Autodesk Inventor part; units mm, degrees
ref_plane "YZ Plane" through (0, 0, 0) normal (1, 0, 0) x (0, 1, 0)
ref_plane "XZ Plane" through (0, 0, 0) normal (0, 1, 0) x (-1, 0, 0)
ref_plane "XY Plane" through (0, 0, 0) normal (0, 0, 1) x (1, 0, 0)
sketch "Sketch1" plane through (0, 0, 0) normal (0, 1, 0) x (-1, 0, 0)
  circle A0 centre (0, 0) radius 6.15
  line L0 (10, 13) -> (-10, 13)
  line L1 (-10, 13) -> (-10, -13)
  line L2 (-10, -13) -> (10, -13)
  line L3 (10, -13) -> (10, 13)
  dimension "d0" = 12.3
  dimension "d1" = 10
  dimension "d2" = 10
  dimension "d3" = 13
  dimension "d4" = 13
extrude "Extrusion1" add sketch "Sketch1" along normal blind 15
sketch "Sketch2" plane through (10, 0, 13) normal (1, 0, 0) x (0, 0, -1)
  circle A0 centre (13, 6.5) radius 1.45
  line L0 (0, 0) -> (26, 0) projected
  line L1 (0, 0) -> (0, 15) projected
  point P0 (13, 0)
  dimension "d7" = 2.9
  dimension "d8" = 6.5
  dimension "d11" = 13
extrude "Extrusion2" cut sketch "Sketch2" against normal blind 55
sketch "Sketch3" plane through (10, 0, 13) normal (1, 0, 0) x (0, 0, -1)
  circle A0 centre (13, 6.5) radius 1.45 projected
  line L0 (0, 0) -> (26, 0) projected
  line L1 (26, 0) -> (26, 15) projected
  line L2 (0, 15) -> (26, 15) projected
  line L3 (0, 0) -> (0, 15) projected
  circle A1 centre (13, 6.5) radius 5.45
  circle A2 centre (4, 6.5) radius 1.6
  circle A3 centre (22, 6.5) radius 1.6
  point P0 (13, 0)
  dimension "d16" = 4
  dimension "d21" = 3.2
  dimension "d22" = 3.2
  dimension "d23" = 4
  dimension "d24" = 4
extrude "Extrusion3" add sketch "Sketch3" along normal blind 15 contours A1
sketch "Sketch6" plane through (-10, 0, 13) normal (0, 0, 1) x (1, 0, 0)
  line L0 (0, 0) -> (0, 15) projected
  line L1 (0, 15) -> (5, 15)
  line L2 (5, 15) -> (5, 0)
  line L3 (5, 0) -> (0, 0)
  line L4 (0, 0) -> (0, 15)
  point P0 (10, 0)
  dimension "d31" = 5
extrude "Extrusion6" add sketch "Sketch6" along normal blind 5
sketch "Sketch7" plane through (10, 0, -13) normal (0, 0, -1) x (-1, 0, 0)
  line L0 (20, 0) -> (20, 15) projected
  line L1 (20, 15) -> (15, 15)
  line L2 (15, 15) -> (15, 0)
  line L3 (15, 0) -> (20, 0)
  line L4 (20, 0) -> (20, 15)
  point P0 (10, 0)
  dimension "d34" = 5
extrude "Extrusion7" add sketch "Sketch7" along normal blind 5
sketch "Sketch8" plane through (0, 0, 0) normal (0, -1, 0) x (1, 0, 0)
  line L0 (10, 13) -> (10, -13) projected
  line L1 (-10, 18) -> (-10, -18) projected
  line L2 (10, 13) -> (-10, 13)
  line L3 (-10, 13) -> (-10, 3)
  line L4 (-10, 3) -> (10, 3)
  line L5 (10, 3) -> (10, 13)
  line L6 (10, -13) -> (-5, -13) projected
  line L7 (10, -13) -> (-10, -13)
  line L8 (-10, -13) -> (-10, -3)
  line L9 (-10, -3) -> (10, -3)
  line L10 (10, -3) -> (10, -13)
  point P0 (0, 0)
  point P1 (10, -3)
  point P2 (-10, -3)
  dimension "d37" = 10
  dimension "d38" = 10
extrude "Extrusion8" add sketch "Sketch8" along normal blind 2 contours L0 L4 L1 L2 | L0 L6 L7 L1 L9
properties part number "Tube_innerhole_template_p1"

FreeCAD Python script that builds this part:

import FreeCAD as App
import Part
import Sketcher

V = App.Vector
Q = App.Units.Quantity


def add_polygon(sketch, points):
    """Adds a closed chain of lines whose ends are joined by coincident constraints."""
    first, n = sketch.GeometryCount, len(points)
    for a, b in zip(points, points[1:] + points[:1]):
        sketch.addGeometry(Part.LineSegment(App.Vector(*a, 0), App.Vector(*b, 0)), False)
    for i in range(n):
        sketch.addConstraint(Sketcher.Constraint("Coincident", first + i, 2, first + (i + 1) % n, 1))

doc = App.newDocument("Part")
params = doc.addObject("Spreadsheet::Sheet", "Params")
for row, (alias, value) in enumerate([
    ("sketch1_diameter", "12.3 mm"),
    ("pad1_length", "15 mm"),
    ("sketch2_diameter", "2.9 mm"),
    ("pocket1_length", "55 mm"),
    ("sketch3_diameter", "10.9 mm"),
    ("sketch3_diameter2", "2.9 mm"),
    ("pad2_length", "15 mm"),
    ("sketch4_width", "5 mm"),
    ("sketch4_height", "15 mm"),
    ("pad3_length", "5 mm"),
    ("sketch5_width", "5 mm"),
    ("sketch5_height", "15 mm"),
    ("pad4_length", "5 mm"),
    ("sketch6_height", "10 mm"),
    ("pad5_length", "2 mm"),
], start=1):
    params.set(f"A{row}", alias)
    params.set(f"B{row}", "=" + value)
    params.setAlias(f"B{row}", alias)

body = doc.addObject("PartDesign::Body", "Body")

# Sketch on XZ plane
sketch1 = doc.addObject("Sketcher::SketchObject", "Sketch")
body.addObject(sketch1)
sketch1.AttachmentSupport = (doc.XZ_Plane, [""])
sketch1.MapMode = "FlatFace"
add_polygon(sketch1, [(-10, -13), (-10, 13), (10, 13), (10, -13)])  # lines 0-3
sketch1.addGeometry(Part.Circle(V(0, 0, 0), V(0, 0, 1), 6.15), False)  # 4
sketch1.addConstraint([
    Sketcher.Constraint("Vertical", 0),
    Sketcher.Constraint("Horizontal", 1),
    Sketcher.Constraint("Vertical", 2),
    Sketcher.Constraint("Horizontal", 3),
    Sketcher.Constraint("Coincident", 4, 3, -1, 1),
    Sketcher.Constraint("Symmetric", 0, 2, 2, 2, -1, 1),
    Sketcher.Constraint("Diameter", 4, Q("12.3 mm")),
    Sketcher.Constraint("DistanceX", 0, 2, -1, 1, Q("10 mm")),
    Sketcher.Constraint("DistanceY", -1, 1, 0, 2, Q("13 mm")),
])
sketch1.setExpression("Constraints[10]", "Params.sketch1_diameter")
pad1 = doc.addObject("PartDesign::Pad", "Pad")
body.addObject(pad1)
pad1.Profile = sketch1
pad1.setExpression("Length", "Params.pad1_length")
pad1.Reversed = True

# Sketch on YZ plane
sketch2 = doc.addObject("Sketcher::SketchObject", "Sketch001")
body.addObject(sketch2)
sketch2.AttachmentSupport = (doc.YZ_Plane, [""])
sketch2.MapMode = "FlatFace"
sketch2.AttachmentOffset = App.Placement(V(0, 0, 10), App.Rotation())
sketch2.addGeometry(Part.Circle(V(6.5, 0, 0), V(0, 0, 1), 1.45), False)
sketch2.addConstraint([
    Sketcher.Constraint("PointOnObject", 0, 3, -1),
    Sketcher.Constraint("Diameter", 0, Q("2.9 mm")),
    Sketcher.Constraint("DistanceX", -1, 1, 0, 3, Q("6.5 mm")),
])
sketch2.setExpression("Constraints[1]", "Params.sketch2_diameter")
pocket1 = doc.addObject("PartDesign::Pocket", "Pocket")
body.addObject(pocket1)
pocket1.Profile = sketch2
pocket1.setExpression("Length", "Params.pocket1_length")

# Sketch on YZ plane
sketch3 = doc.addObject("Sketcher::SketchObject", "Sketch002")
body.addObject(sketch3)
sketch3.AttachmentSupport = (doc.YZ_Plane, [""])
sketch3.MapMode = "FlatFace"
sketch3.AttachmentOffset = App.Placement(V(0, 0, 10), App.Rotation())
sketch3.addGeometry([
    Part.Circle(V(6.5, 0, 0), V(0, 0, 1), 5.45),
    Part.Circle(V(6.5, 0, 0), V(0, 0, 1), 1.45),
], False)
sketch3.addConstraint([
    Sketcher.Constraint("Coincident", 1, 3, 0, 3),
    Sketcher.Constraint("PointOnObject", 0, 3, -1),
    Sketcher.Constraint("Diameter", 0, Q("10.9 mm")),
    Sketcher.Constraint("Diameter", 1, Q("2.9 mm")),
    Sketcher.Constraint("DistanceX", -1, 1, 0, 3, Q("6.5 mm")),
])
sketch3.setExpression("Constraints[2]", "Params.sketch3_diameter")
sketch3.setExpression("Constraints[3]", "Params.sketch3_diameter2")
pad2 = doc.addObject("PartDesign::Pad", "Pad001")
body.addObject(pad2)
pad2.Profile = sketch3
pad2.setExpression("Length", "Params.pad2_length")

# Sketch on XY plane
sketch4 = doc.addObject("Sketcher::SketchObject", "Sketch003")
body.addObject(sketch4)
sketch4.AttachmentSupport = (doc.XY_Plane, [""])
sketch4.MapMode = "FlatFace"
sketch4.AttachmentOffset = App.Placement(V(0, 0, 13), App.Rotation())
add_polygon(sketch4, [(-10, 15), (-10, 0), (-5, 0), (-5, 15)])  # lines 0-3
sketch4.addConstraint([
    Sketcher.Constraint("Vertical", 0),
    Sketcher.Constraint("Horizontal", 1),
    Sketcher.Constraint("Vertical", 2),
    Sketcher.Constraint("Horizontal", 3),
    Sketcher.Constraint("PointOnObject", 0, 2, -1),
    Sketcher.Constraint("DistanceX", 1, 1, 1, 2, Q("5 mm")),
    Sketcher.Constraint("DistanceX", 1, 2, -1, 1, Q("5 mm")),
    Sketcher.Constraint("DistanceY", 0, 2, 0, 1, Q("15 mm")),
])
sketch4.setExpression("Constraints[9]", "Params.sketch4_width")
sketch4.setExpression("Constraints[11]", "Params.sketch4_height")
pad3 = doc.addObject("PartDesign::Pad", "Pad002")
body.addObject(pad3)
pad3.Profile = sketch4
pad3.setExpression("Length", "Params.pad3_length")

# Sketch on XY plane
sketch5 = doc.addObject("Sketcher::SketchObject", "Sketch004")
body.addObject(sketch5)
sketch5.AttachmentSupport = (doc.XY_Plane, [""])
sketch5.MapMode = "FlatFace"
sketch5.AttachmentOffset = App.Placement(V(0, 0, -13), App.Rotation())
add_polygon(sketch5, [(-5, 0), (-10, 0), (-10, 15), (-5, 15)])  # lines 0-3
sketch5.addConstraint([
    Sketcher.Constraint("Horizontal", 0),
    Sketcher.Constraint("Vertical", 1),
    Sketcher.Constraint("Horizontal", 2),
    Sketcher.Constraint("Vertical", 3),
    Sketcher.Constraint("PointOnObject", 0, 2, -1),
    Sketcher.Constraint("DistanceX", 0, 2, 0, 1, Q("5 mm")),
    Sketcher.Constraint("DistanceX", 2, 2, -1, 1, Q("5 mm")),
    Sketcher.Constraint("DistanceY", 1, 1, 1, 2, Q("15 mm")),
])
sketch5.setExpression("Constraints[9]", "Params.sketch5_width")
sketch5.setExpression("Constraints[11]", "Params.sketch5_height")
pad4 = doc.addObject("PartDesign::Pad", "Pad003")
body.addObject(pad4)
pad4.Profile = sketch5
pad4.setExpression("Length", "Params.pad4_length")
pad4.Reversed = True

# Sketch on XZ plane
sketch6 = doc.addObject("Sketcher::SketchObject", "Sketch005")
body.addObject(sketch6)
sketch6.AttachmentSupport = (doc.XZ_Plane, [""])
sketch6.MapMode = "FlatFace"
add_polygon(sketch6, [(10, 3), (10, 13), (-10, 13), (-10, 3)])  # lines 0-3
add_polygon(sketch6, [(10, -13), (10, -3), (-10, -3), (-10, -13)])  # lines 4-7
sketch6.addConstraint([
    Sketcher.Constraint("Vertical", 0),
    Sketcher.Constraint("Horizontal", 1),
    Sketcher.Constraint("Vertical", 2),
    Sketcher.Constraint("Horizontal", 3),
    Sketcher.Constraint("Vertical", 4),
    Sketcher.Constraint("Horizontal", 5),
    Sketcher.Constraint("Vertical", 6),
    Sketcher.Constraint("Horizontal", 7),
    Sketcher.Constraint("Symmetric", 2, 2, 4, 2, -1, 1),
    Sketcher.Constraint("Symmetric", 0, 2, 6, 2, -1, 1),
    Sketcher.Constraint("Vertical", 3, 2, 4, 2),
    Sketcher.Constraint("DistanceY", 0, 1, 0, 2, Q("10 mm")),
    Sketcher.Constraint("DistanceX", -1, 1, 0, 2, Q("10 mm")),
    Sketcher.Constraint("DistanceY", -1, 1, 0, 2, Q("13 mm")),
])
sketch6.setExpression("Constraints[19]", "Params.sketch6_height")
pad5 = doc.addObject("PartDesign::Pad", "Pad004")
body.addObject(pad5)
pad5.Profile = sketch6
pad5.setExpression("Length", "Params.pad5_length")

doc.recompute()
